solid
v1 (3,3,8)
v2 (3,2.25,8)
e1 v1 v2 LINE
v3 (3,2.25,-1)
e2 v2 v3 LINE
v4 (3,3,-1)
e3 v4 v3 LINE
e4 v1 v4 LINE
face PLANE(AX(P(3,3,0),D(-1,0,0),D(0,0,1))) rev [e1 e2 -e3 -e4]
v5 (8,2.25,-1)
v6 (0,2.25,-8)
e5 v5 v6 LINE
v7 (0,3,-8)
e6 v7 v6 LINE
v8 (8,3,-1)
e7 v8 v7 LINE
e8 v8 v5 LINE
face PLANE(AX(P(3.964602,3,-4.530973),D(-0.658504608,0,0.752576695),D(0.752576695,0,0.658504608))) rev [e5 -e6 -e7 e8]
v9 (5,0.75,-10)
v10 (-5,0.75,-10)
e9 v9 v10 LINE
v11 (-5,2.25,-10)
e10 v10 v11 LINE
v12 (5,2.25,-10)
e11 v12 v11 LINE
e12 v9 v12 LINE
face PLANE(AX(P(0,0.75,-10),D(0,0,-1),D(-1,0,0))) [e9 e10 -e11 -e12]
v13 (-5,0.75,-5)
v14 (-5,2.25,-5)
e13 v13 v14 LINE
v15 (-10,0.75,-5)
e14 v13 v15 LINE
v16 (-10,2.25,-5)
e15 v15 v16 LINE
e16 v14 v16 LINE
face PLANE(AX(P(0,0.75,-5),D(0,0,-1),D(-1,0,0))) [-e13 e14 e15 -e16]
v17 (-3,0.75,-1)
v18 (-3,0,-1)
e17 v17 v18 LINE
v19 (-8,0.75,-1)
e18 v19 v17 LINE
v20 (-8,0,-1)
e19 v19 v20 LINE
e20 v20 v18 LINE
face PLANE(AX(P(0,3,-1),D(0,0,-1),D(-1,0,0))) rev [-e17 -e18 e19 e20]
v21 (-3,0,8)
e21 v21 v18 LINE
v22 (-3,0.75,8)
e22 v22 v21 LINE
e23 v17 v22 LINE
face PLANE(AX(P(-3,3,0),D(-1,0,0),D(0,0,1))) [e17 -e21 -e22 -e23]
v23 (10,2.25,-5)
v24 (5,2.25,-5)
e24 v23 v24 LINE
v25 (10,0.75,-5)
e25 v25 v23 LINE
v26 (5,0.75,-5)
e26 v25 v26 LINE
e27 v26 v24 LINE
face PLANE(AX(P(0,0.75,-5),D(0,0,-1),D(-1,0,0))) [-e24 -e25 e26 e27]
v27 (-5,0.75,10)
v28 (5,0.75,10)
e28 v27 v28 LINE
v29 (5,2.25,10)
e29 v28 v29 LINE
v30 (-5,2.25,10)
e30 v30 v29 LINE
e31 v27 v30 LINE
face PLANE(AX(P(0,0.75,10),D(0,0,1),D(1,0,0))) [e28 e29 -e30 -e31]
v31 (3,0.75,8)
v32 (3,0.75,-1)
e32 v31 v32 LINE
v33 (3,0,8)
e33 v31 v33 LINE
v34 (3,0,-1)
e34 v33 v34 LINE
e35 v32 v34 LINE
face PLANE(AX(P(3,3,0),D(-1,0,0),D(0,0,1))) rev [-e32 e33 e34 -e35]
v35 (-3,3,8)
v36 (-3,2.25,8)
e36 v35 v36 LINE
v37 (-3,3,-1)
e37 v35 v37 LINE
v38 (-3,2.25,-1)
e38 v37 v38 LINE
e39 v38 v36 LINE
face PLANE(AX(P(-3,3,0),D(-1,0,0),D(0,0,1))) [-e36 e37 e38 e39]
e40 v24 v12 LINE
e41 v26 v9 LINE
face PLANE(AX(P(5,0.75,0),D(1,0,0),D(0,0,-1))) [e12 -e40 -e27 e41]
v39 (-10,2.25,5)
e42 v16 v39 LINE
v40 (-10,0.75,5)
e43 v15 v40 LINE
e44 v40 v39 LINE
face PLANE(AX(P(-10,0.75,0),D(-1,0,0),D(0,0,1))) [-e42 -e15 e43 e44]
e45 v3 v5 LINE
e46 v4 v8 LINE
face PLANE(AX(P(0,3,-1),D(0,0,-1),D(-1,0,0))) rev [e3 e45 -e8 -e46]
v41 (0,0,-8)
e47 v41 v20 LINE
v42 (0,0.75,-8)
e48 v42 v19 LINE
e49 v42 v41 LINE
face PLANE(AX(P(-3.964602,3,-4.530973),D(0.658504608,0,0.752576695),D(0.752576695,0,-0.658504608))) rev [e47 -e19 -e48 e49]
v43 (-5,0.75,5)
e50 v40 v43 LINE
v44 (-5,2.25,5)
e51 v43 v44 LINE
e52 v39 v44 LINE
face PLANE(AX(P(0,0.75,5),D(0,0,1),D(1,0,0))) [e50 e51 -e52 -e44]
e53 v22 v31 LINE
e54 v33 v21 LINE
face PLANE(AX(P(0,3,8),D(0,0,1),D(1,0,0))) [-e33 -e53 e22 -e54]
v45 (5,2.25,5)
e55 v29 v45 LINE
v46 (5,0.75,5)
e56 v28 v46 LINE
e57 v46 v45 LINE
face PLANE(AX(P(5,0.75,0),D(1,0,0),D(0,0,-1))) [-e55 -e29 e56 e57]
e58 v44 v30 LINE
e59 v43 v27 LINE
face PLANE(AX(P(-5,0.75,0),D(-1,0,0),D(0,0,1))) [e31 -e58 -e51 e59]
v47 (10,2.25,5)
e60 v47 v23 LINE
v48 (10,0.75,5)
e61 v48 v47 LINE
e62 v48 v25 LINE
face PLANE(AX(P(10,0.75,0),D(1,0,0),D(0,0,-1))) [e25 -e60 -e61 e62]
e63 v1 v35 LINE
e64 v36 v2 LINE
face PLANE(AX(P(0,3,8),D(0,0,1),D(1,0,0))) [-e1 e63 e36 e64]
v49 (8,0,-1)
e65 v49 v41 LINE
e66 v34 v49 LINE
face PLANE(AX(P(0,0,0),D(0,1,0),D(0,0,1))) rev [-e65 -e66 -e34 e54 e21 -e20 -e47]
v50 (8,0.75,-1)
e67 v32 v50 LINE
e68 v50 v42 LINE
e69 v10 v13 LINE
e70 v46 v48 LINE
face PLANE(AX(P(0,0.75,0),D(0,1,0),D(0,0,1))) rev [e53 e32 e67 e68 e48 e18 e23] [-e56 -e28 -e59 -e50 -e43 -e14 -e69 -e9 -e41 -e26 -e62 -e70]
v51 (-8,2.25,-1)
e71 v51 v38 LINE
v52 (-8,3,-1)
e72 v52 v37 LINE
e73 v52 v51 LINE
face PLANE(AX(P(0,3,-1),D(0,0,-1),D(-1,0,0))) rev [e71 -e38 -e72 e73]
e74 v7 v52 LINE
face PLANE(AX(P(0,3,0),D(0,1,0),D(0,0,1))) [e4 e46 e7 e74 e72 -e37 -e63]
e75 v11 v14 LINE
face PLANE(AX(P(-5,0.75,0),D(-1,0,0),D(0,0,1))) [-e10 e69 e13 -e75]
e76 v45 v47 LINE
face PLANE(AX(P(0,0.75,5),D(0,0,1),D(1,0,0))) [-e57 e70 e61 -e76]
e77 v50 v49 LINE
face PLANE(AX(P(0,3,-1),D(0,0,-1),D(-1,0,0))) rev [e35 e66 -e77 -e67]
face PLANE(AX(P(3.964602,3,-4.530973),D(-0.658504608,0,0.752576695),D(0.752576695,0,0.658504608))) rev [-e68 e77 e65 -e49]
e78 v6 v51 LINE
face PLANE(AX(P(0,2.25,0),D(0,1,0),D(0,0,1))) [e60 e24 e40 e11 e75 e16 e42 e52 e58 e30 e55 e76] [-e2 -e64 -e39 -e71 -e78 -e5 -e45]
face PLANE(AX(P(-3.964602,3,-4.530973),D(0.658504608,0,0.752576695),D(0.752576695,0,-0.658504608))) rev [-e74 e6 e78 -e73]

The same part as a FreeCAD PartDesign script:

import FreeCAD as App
import Part
import Sketcher

V = App.Vector


def add_polygon(sketch, points):
    """Adds a closed chain of lines whose ends are joined by coincident constraints."""
    first, n = sketch.GeometryCount, len(points)
    for a, b in zip(points, points[1:] + points[:1]):
        sketch.addGeometry(Part.LineSegment(App.Vector(*a, 0), App.Vector(*b, 0)), False)
    for i in range(n):
        sketch.addConstraint(Sketcher.Constraint("Coincident", first + i, 2, first + (i + 1) % n, 1))

doc = App.newDocument("Part")
body = doc.addObject("PartDesign::Body", "Body")

# Sketch on XZ plane
sketch1 = doc.addObject("Sketcher::SketchObject", "Sketch")
body.addObject(sketch1)
sketch1.AttachmentSupport = (doc.XZ_Plane, [""])
sketch1.MapMode = "FlatFace"
add_polygon(sketch1, [(-3, -1), (-3, 8), (3, 8), (3, -1), (8, -1), (5, -3.6), (3.4, -5), (0, -8), (-3.4, -5), (-5, -3.6), (-8, -1)])  # lines 0-10
sketch1.addConstraint(Sketcher.Constraint("Vertical", 0))
sketch1.addConstraint(Sketcher.Constraint("Horizontal", 1))
sketch1.addConstraint(Sketcher.Constraint("Vertical", 2))
sketch1.addConstraint(Sketcher.Constraint("Horizontal", 3))
sketch1.addConstraint(Sketcher.Constraint("Horizontal", 10))
sketch1.addConstraint(Sketcher.Constraint("Symmetric", 5, 2, 7, 2, -2))
sketch1.addConstraint(Sketcher.Constraint("Symmetric", 4, 2, 8, 2, -2))
sketch1.addConstraint(Sketcher.Constraint("Symmetric", 3, 2, 9, 2, -2))
sketch1.addConstraint(Sketcher.Constraint("PointOnObject", 6, 2, -2))
sketch1.addConstraint(Sketcher.Constraint("Parallel", 4, 5))
sketch1.addConstraint(Sketcher.Constraint("Parallel", 5, 6))
sketch1.addConstraint(Sketcher.Constraint("Equal", 3, 10))
sketch1.addConstraint(Sketcher.Constraint("DistanceX", 1, 1, 1, 2, 6.0))
sketch1.addConstraint(Sketcher.Constraint("DistanceX", 3, 1, 3, 2, 5.0))
sketch1.addConstraint(Sketcher.Constraint("DistanceY", 0, 1, 0, 2, 9.0))
sketch1.addConstraint(Sketcher.Constraint("DistanceY", -1, 1, 0, 2, 8.0))
sketch1.addConstraint(Sketcher.Constraint("DistanceX", -1, 1, 4, 2, 5.0))
sketch1.addConstraint(Sketcher.Constraint("DistanceY", 5, 2, -1, 1, 5.0))
sketch1.addConstraint(Sketcher.Constraint("DistanceY", 6, 2, -1, 1, 8.0))
pad1 = doc.addObject("PartDesign::Pad", "Pad")
body.addObject(pad1)
pad1.Profile = sketch1
pad1.Length = 3
pad1.Reversed = True

# Sketch on XZ plane
sketch2 = doc.addObject("Sketcher::SketchObject", "Sketch001")
body.addObject(sketch2)
sketch2.AttachmentSupport = (doc.XZ_Plane, [""])
sketch2.MapMode = "FlatFace"
sketch2.AttachmentOffset = App.Placement(V(0, 0, -1.5), App.Rotation())
add_polygon(sketch2, [(10, 5), (10, -5), (5, -5), (5, -10), (-5, -10), (-5, -5), (-10, -5), (-10, 5), (-5, 5), (-5, 10), (5, 10), (5, 5)])  # lines 0-11
add_polygon(sketch2, [(-3, -1), (-8, -1), (-5, -3.6), (-3.4, -5), (0, -8), (3.4, -5), (5, -3.6), (8, -1), (3, -1), (3, 8), (-3, 8)])  # lines 12-22
sketch2.addConstraint(Sketcher.Constraint("Vertical", 0))
sketch2.addConstraint(Sketcher.Constraint("Horizontal", 1))
sketch2.addConstraint(Sketcher.Constraint("Vertical", 2))
sketch2.addConstraint(Sketcher.Constraint("Horizontal", 3))
sketch2.addConstraint(Sketcher.Constraint("Vertical", 4))
sketch2.addConstraint(Sketcher.Constraint("Horizontal", 5))
sketch2.addConstraint(Sketcher.Constraint("Vertical", 6))
sketch2.addConstraint(Sketcher.Constraint("Horizontal", 7))
sketch2.addConstraint(Sketcher.Constraint("Vertical", 8))
sketch2.addConstraint(Sketcher.Constraint("Horizontal", 9))
sketch2.addConstraint(Sketcher.Constraint("Vertical", 10))
sketch2.addConstraint(Sketcher.Constraint("Horizontal", 11))
sketch2.addConstraint(Sketcher.Constraint("Horizontal", 12))
sketch2.addConstraint(Sketcher.Constraint("Horizontal", 19))
sketch2.addConstraint(Sketcher.Constraint("Vertical", 20))
sketch2.addConstraint(Sketcher.Constraint("Horizontal", 21))
sketch2.addConstraint(Sketcher.Constraint("Vertical", 22))
sketch2.addConstraint(Sketcher.Constraint("Symmetric", 0, 2, 6, 2, -1, 1))
sketch2.addConstraint(Sketcher.Constraint("Symmetric", 2, 2, 8, 2, -1, 1))
sketch2.addConstraint(Sketcher.Constraint("Symmetric", 4, 2, 10, 2, -1, 1))
sketch2.addConstraint(Sketcher.Constraint("Symmetric", 1, 2, 4, 2, -2))
sketch2.addConstraint(Sketcher.Constraint("Symmetric", 14, 2, 16, 2, -2))
sketch2.addConstraint(Sketcher.Constraint("Symmetric", 13, 2, 17, 2, -2))
sketch2.addConstraint(Sketcher.Constraint("Symmetric", 12, 2, 18, 2, -2))
sketch2.addConstraint(Sketcher.Constraint("PointOnObject", 15, 2, -2))
sketch2.addConstraint(Sketcher.Constraint("Parallel", 13, 14))
sketch2.addConstraint(Sketcher.Constraint("Parallel", 14, 15))
sketch2.addConstraint(Sketcher.Constraint("Horizontal", 5, 2, 14, 2))
sketch2.addConstraint(Sketcher.Constraint("Vertical", 8, 2, 13, 2))
sketch2.addConstraint(Sketcher.Constraint("Equal", 11, 12))
sketch2.addConstraint(Sketcher.Constraint("Equal", 12, 19))
sketch2.addConstraint(Sketcher.Constraint("Equal", 9, 0))
sketch2.addConstraint(Sketcher.Constraint("Equal", 19, 2))
sketch2.addConstraint(Sketcher.Constraint("DistanceX", 1, 2, 1, 1, 5.0))
sketch2.addConstraint(Sketcher.Constraint("DistanceX", 3, 2, 3, 1, 10.0))
sketch2.addConstraint(Sketcher.Constraint("DistanceX", 21, 2, 21, 1, 6.0))
sketch2.addConstraint(Sketcher.Constraint("DistanceY", 20, 1, 20, 2, 9.0))
sketch2.addConstraint(Sketcher.Constraint("DistanceY", 12, 2, -1, 1, 1.0))
sketch2.addConstraint(Sketcher.Constraint("DistanceY", 15, 2, -1, 1, 8.0))
pad2 = doc.addObject("PartDesign::Pad", "Pad001")
body.addObject(pad2)
pad2.Profile = sketch2
pad2.Type = "TwoLengths"
pad2.Length = 0.75
pad2.Length2 = 0.75
pad2.Reversed = True

doc.recompute()
